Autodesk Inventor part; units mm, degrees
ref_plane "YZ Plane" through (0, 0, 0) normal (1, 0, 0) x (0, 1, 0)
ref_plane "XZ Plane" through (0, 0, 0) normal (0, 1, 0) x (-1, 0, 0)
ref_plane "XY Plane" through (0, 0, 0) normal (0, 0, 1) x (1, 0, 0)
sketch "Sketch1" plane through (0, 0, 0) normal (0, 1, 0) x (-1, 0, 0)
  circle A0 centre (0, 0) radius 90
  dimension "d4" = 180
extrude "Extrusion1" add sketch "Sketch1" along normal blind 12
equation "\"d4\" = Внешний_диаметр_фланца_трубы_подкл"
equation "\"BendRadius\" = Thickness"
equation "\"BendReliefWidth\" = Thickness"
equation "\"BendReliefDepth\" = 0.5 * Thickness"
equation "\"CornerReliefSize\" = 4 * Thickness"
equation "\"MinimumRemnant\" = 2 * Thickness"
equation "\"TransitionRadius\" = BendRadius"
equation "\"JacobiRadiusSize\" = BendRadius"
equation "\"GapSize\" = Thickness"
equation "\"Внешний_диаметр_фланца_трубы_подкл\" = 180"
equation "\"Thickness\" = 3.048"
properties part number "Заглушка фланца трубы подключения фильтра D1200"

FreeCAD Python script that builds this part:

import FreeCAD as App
import Part
import Sketcher

doc = App.newDocument("Part")
body = doc.addObject("PartDesign::Body", "Body")

sketch1 = body.newObject("Sketcher::SketchObject", "Sketch")
sketch1.AttachmentSupport = (doc.getObject("XZ_Plane"), [""])
sketch1.MapMode = "FlatFace"
sketch1.addGeometry(Part.Circle(App.Vector(0, 0, 0), App.Vector(0, 0, 1), 90), False)
sketch1.addConstraint(Sketcher.Constraint("Coincident", 0, 3, -1, 1))
sketch1.addConstraint(Sketcher.Constraint("Diameter", 0, 180.0))
pad1 = body.newObject("PartDesign::Pad", "Pad")
pad1.Profile = sketch1
pad1.Length = 12
pad1.Reversed = True

doc.recompute()
